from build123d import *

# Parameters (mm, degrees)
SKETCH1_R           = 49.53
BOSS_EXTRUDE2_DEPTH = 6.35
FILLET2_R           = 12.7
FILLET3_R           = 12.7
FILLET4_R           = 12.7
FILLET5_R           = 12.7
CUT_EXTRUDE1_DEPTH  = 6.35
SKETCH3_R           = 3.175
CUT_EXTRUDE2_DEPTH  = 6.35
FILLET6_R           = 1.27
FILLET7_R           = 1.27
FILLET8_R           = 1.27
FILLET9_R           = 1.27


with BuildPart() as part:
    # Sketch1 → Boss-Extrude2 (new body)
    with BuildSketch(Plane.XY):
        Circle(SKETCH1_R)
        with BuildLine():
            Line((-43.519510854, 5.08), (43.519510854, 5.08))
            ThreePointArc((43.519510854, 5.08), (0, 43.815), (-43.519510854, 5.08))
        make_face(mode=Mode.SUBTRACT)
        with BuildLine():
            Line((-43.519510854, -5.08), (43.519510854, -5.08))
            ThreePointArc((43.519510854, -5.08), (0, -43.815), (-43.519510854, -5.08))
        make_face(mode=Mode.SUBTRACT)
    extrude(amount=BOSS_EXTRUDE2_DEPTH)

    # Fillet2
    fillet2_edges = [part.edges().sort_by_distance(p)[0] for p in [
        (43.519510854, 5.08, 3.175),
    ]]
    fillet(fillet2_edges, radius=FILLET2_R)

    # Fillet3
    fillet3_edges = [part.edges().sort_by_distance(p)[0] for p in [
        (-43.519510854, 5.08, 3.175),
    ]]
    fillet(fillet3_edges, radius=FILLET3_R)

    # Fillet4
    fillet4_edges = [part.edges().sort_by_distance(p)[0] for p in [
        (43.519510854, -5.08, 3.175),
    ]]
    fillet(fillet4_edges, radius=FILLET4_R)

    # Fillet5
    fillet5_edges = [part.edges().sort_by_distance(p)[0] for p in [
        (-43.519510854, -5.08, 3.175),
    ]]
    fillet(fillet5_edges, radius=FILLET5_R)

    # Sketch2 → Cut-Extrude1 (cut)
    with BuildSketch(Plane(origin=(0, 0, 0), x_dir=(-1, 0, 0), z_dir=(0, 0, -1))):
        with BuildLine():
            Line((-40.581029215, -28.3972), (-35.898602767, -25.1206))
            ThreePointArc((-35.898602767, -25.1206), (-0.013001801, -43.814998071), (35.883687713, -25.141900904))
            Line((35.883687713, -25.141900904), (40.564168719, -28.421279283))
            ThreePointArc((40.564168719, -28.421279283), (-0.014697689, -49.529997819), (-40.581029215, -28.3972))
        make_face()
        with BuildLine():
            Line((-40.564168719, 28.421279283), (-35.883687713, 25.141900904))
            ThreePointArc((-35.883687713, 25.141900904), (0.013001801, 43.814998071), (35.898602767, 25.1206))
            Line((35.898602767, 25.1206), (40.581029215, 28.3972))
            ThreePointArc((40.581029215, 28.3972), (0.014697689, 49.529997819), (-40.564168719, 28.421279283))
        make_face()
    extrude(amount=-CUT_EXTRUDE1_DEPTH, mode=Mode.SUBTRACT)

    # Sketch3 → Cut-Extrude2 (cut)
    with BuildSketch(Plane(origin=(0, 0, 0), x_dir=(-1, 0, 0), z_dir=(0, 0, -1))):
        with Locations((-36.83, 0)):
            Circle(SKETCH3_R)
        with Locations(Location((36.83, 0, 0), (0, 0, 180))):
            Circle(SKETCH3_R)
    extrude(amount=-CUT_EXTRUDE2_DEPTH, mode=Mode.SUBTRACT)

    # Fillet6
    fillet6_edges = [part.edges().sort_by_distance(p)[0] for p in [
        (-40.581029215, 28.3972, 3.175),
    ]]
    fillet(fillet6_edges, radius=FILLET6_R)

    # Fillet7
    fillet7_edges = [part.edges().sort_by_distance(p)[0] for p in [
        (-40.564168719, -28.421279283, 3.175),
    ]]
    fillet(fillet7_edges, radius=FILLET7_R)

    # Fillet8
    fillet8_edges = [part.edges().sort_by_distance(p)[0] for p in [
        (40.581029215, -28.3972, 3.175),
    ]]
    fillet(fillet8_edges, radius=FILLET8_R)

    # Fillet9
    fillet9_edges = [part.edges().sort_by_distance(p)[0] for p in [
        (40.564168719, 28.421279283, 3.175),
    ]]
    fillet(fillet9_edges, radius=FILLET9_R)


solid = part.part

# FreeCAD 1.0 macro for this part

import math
import FreeCAD as App
import Part
import Sketcher
Q = App.Units.Quantity


def edges_at(feature, points):
    """Names of the edges that pass closest to the given points."""
    edges = feature.Shape.Edges
    near = lambda p: min(range(len(edges)), key=lambda i: edges[i].distToShape(Part.Vertex(*p))[0])
    return sorted({f"Edge{near(p) + 1}" for p in points})

doc = App.newDocument("Part")
params = doc.addObject("Spreadsheet::Sheet", "Params")
for row, (alias, value) in enumerate([
    ("sketch1_diameter", "3.9 in"),
    ("sketch1_radius", "1.725 in"),
    ("pad1_length", "0.25 in"),
    ("fillet_radius", "0.5 in"),
    ("fillet2_radius", "0.5 in"),
    ("fillet3_radius", "0.5 in"),
    ("fillet4_radius", "0.5 in"),
    ("sketch2_radius", "1.95 in"),
    ("sketch2_radius2", "1.725 in"),
    ("pocket1_length", "0.25 in"),
    ("sketch3_diameter", "0.25 in"),
    ("pocket2_length", "0.25 in"),
    ("fillet5_radius", "0.05 in"),
    ("fillet6_radius", "0.05 in"),
    ("fillet7_radius", "0.05 in"),
    ("fillet8_radius", "0.05 in"),
], start=1):
    params.set(f"A{row}", alias)
    params.set(f"B{row}", "=" + value)
    params.setAlias(f"B{row}", alias)

body = doc.addObject("PartDesign::Body", "Body")

sketch1 = doc.addObject("Sketcher::SketchObject", "Sketch")
body.addObject(sketch1)
sketch1.AttachmentSupport = (doc.XY_Plane, [""])
sketch1.MapMode = "FlatFace"
sketch1.addGeometry([
    Part.Circle(App.Vector(0, 0, 0), App.Vector(0, 0, 1), 50),
    Part.ArcOfCircle(Part.Circle(App.Vector(0, 0, 0), App.Vector(0, 0, 1), 44), math.radians(-173), math.radians(-7)),
    Part.LineSegment(App.Vector(-44, -5, 0), App.Vector(44, -5, 0)),
    Part.LineSegment(App.Vector(44, 5, 0), App.Vector(-44, 5, 0)),
    Part.ArcOfCircle(Part.Circle(App.Vector(0, 0, 0), App.Vector(0, 0, 1), 44), math.radians(7), math.radians(173)),
], False)
sketch1.addConstraint([
    Sketcher.Constraint("Coincident", 1, 1, 2, 1),
    Sketcher.Constraint("Coincident", 2, 2, 1, 2),
    Sketcher.Constraint("Coincident", 3, 1, 4, 1),
    Sketcher.Constraint("Coincident", 4, 2, 3, 2),
    Sketcher.Constraint("Horizontal", 2),
    Sketcher.Constraint("Horizontal", 3),
    Sketcher.Constraint("Coincident", 0, 3, -1, 1),
    Sketcher.Constraint("Coincident", 1, 3, -1, 1),
    Sketcher.Constraint("Coincident", 4, 3, -1, 1),
    Sketcher.Constraint("Equal", 1, 4),
    Sketcher.Constraint("Vertical", 2, 2, 3, 1),
    Sketcher.Constraint("Diameter", 0, Q("3.9 in")),
    Sketcher.Constraint("Radius", 1, Q("1.725 in")),
    Sketcher.Constraint("DistanceY", 1, 1, -1, 1, Q("0.2 in")),
])
sketch1.setExpression("Constraints[11]", "Params.sketch1_diameter")
sketch1.setExpression("Constraints[12]", "Params.sketch1_radius")
pad1 = doc.addObject("PartDesign::Pad", "Pad")
body.addObject(pad1)
pad1.Profile = sketch1
pad1.setExpression("Length", "Params.pad1_length")
doc.recompute()

fillet = doc.addObject("PartDesign::Fillet", "Fillet")
body.addObject(fillet)
fillet.Base = (pad1, edges_at(pad1, [(43.52, 5.08, 3.175)]))
fillet.setExpression("Radius", "Params.fillet_radius")
doc.recompute()

fillet2 = doc.addObject("PartDesign::Fillet", "Fillet001")
body.addObject(fillet2)
fillet2.Base = (fillet, edges_at(fillet, [(-43.52, 5.08, 3.175)]))
fillet2.setExpression("Radius", "Params.fillet2_radius")
doc.recompute()

fillet3 = doc.addObject("PartDesign::Fillet", "Fillet002")
body.addObject(fillet3)
fillet3.Base = (fillet2, edges_at(fillet2, [(43.52, -5.08, 3.175)]))
fillet3.setExpression("Radius", "Params.fillet3_radius")
doc.recompute()

fillet4 = doc.addObject("PartDesign::Fillet", "Fillet003")
body.addObject(fillet4)
fillet4.Base = (fillet3, edges_at(fillet3, [(-43.52, -5.08, 3.175)]))
fillet4.setExpression("Radius", "Params.fillet4_radius")

sketch2 = doc.addObject("Sketcher::SketchObject", "Sketch001")
body.addObject(sketch2)
sketch2.AttachmentSupport = (doc.XY_Plane, [""])
sketch2.MapMode = "FlatFace"
sketch2.addGeometry([
    Part.LineSegment(App.Vector(36, -25, 0), App.Vector(41, -28, 0)),
    Part.ArcOfCircle(Part.Circle(App.Vector(0, 0, 0), App.Vector(0, 0, 1), 50), math.radians(-145), math.radians(-35)),
    Part.LineSegment(App.Vector(-41, -28, 0), App.Vector(-36, -25, 0)),
    Part.ArcOfCircle(Part.Circle(App.Vector(0, 0, 0), App.Vector(0, 0, 1), 44), math.radians(-145), math.radians(-35)),
    Part.LineSegment(App.Vector(41, 28, 0), App.Vector(36, 25, 0)),
    Part.ArcOfCircle(Part.Circle(App.Vector(0, 0, 0), App.Vector(0, 0, 1), 44), math.radians(35), math.radians(145)),
    Part.LineSegment(App.Vector(-36, 25, 0), App.Vector(-41, 28, 0)),
    Part.ArcOfCircle(Part.Circle(App.Vector(0, 0, 0), App.Vector(0, 0, 1), 50), math.radians(35), math.radians(145)),
], False)
sketch2.addConstraint([
    Sketcher.Constraint("Coincident", 0, 2, 1, 2),
    Sketcher.Constraint("Coincident", 1, 1, 2, 1),
    Sketcher.Constraint("Coincident", 2, 2, 3, 1),
    Sketcher.Constraint("Coincident", 3, 2, 0, 1),
    Sketcher.Constraint("Coincident", 4, 2, 5, 1),
    Sketcher.Constraint("Coincident", 5, 2, 6, 1),
    Sketcher.Constraint("Coincident", 6, 2, 7, 2),
    Sketcher.Constraint("Coincident", 7, 1, 4, 1),
    Sketcher.Constraint("Coincident", 1, 3, -1, 1),
    Sketcher.Constraint("Coincident", 3, 3, -1, 1),
    Sketcher.Constraint("Coincident", 5, 3, -1, 1),
    Sketcher.Constraint("Coincident", 7, 3, -1, 1),
    Sketcher.Constraint("Equal", 3, 5),
    Sketcher.Constraint("Equal", 1, 7),
    Sketcher.Constraint("Parallel", 2, 4),
    Sketcher.Constraint("Parallel", 0, 6),
    Sketcher.Constraint("Radius", 1, Q("1.95 in")),
    Sketcher.Constraint("Radius", 3, Q("1.725 in")),
    Sketcher.Constraint("DistanceY", 0, 2, -1, 1, Q("1.118 in")),
    Sketcher.Constraint("DistanceY", 3, 2, -1, 1, Q("0.989 in")),
    Sketcher.Constraint("DistanceY", -1, 1, 5, 2, Q("0.989 in")),
    Sketcher.Constraint("DistanceY", 2, 2, -1, 1, 25.141901),
    Sketcher.Constraint("DistanceY", -1, 1, 4, 2, 25.141901),
    Sketcher.Constraint("DistanceX", 1, 1, -1, 1, 40.564169),
])
sketch2.setExpression("Constraints[16]", "Params.sketch2_radius")
sketch2.setExpression("Constraints[17]", "Params.sketch2_radius2")
pocket1 = doc.addObject("PartDesign::Pocket", "Pocket")
body.addObject(pocket1)
pocket1.Profile = sketch2
pocket1.setExpression("Length", "Params.pocket1_length")
pocket1.Reversed = True

sketch3 = doc.addObject("Sketcher::SketchObject", "Sketch002")
body.addObject(sketch3)
sketch3.AttachmentSupport = (doc.XY_Plane, [""])
sketch3.MapMode = "FlatFace"
sketch3.addGeometry([
    Part.Circle(App.Vector(36.8, 0, 0), App.Vector(0, 0, 1), 3.2),
    Part.Circle(App.Vector(-36.8, 0, 0), App.Vector(0, 0, 1), 3.2),
], False)
sketch3.addConstraint([
    Sketcher.Constraint("Equal", 0, 1),
    Sketcher.Constraint("Symmetric", 0, 3, 1, 3, -1, 1),
    Sketcher.Constraint("PointOnObject", 0, 3, -1),
    Sketcher.Constraint("Diameter", 0, Q("0.25 in")),
    Sketcher.Constraint("DistanceX", 1, 3, 0, 3, Q("2.9 in")),
])
sketch3.setExpression("Constraints[3]", "Params.sketch3_diameter")
pocket2 = doc.addObject("PartDesign::Pocket", "Pocket001")
body.addObject(pocket2)
pocket2.Profile = sketch3
pocket2.setExpression("Length", "Params.pocket2_length")
pocket2.Reversed = True
doc.recompute()

fillet5 = doc.addObject("PartDesign::Fillet", "Fillet004")
body.addObject(fillet5)
fillet5.Base = (pocket2, edges_at(pocket2, [(-40.581, 28.397, 3.175)]))
fillet5.setExpression("Radius", "Params.fillet5_radius")
doc.recompute()

fillet6 = doc.addObject("PartDesign::Fillet", "Fillet005")
body.addObject(fillet6)
fillet6.Base = (fillet5, edges_at(fillet5, [(-40.564, -28.421, 3.175)]))
fillet6.setExpression("Radius", "Params.fillet6_radius")
doc.recompute()

fillet7 = doc.addObject("PartDesign::Fillet", "Fillet006")
body.addObject(fillet7)
fillet7.Base = (fillet6, edges_at(fillet6, [(40.581, -28.397, 3.175)]))
fillet7.setExpression("Radius", "Params.fillet7_radius")
doc.recompute()

fillet8 = doc.addObject("PartDesign::Fillet", "Fillet007")
body.addObject(fillet8)
fillet8.Base = (fillet7, edges_at(fillet7, [(40.564, 28.421, 3.175)]))
fillet8.setExpression("Radius", "Params.fillet8_radius")

doc.recompute()
